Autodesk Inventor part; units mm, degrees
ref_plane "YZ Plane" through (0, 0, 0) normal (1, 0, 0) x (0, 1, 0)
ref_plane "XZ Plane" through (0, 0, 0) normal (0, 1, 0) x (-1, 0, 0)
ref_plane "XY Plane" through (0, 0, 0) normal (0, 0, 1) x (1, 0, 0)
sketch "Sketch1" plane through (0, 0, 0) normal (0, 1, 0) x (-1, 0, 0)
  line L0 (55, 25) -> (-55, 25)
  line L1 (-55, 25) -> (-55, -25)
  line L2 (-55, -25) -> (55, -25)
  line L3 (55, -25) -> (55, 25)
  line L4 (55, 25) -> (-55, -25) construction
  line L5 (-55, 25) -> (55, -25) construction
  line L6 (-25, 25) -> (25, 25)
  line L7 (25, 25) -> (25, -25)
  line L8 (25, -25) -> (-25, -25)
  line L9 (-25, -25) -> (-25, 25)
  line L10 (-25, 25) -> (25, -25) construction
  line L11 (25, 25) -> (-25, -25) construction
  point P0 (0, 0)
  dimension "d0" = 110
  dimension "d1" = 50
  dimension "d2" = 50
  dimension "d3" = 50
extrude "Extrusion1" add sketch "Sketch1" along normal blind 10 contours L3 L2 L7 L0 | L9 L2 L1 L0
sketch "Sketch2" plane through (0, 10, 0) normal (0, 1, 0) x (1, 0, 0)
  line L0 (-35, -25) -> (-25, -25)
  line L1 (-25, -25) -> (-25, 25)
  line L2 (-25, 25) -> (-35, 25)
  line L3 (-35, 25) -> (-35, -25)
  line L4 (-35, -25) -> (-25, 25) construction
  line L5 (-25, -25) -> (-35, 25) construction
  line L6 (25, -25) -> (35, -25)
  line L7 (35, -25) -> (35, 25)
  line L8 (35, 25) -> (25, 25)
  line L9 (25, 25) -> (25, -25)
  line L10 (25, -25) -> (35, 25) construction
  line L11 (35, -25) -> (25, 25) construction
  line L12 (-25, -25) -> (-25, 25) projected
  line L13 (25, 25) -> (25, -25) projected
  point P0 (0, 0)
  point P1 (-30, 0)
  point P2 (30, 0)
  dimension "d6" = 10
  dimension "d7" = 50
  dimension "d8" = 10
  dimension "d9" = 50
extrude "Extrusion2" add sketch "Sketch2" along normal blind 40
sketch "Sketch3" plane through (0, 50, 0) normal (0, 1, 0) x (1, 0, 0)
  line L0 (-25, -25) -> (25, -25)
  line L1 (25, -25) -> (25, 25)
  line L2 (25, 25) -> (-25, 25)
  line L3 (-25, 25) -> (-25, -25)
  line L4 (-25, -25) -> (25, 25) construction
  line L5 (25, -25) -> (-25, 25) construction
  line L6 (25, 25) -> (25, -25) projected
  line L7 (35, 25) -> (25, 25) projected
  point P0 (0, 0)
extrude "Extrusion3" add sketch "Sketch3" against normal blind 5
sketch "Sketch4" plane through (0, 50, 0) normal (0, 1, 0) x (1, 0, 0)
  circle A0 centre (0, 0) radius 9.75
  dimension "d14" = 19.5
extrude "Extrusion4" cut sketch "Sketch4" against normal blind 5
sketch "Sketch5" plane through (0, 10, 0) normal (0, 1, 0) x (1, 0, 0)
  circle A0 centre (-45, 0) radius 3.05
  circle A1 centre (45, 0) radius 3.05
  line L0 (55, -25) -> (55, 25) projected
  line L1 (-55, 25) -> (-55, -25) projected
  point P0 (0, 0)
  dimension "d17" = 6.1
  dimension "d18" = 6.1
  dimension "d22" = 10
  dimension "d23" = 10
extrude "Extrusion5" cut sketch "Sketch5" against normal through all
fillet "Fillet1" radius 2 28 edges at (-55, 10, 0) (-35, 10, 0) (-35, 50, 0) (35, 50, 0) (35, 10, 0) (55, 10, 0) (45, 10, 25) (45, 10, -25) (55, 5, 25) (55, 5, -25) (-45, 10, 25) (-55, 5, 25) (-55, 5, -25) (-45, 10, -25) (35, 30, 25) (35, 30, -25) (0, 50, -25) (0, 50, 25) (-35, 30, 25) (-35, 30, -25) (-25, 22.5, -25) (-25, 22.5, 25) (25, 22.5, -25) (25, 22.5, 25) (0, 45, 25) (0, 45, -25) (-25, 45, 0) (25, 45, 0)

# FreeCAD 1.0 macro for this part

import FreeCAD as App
import Part
import Sketcher

V = App.Vector


def edges_at(feature, points):
    """Names of the edges that pass closest to the given points."""
    edges = feature.Shape.Edges
    near = lambda p: min(range(len(edges)), key=lambda i: edges[i].distToShape(Part.Vertex(*p))[0])
    return sorted({f"Edge{near(p) + 1}" for p in points})


def add_polygon(sketch, points):
    """Adds a closed chain of lines whose ends are joined by coincident constraints."""
    first, n = sketch.GeometryCount, len(points)
    for a, b in zip(points, points[1:] + points[:1]):
        sketch.addGeometry(Part.LineSegment(App.Vector(*a, 0), App.Vector(*b, 0)), False)
    for i in range(n):
        sketch.addConstraint(Sketcher.Constraint("Coincident", first + i, 2, first + (i + 1) % n, 1))

doc = App.newDocument("Part")
params = doc.addObject("Spreadsheet::Sheet", "Params")
for row, (alias, value) in enumerate([
    ("sketch1_height", "50 mm"),
    ("pad1_length", "10 mm"),
    ("sketch2_width", "10 mm"),
    ("sketch2_height", "50 mm"),
    ("pad2_length", "40 mm"),
    ("sketch3_width", "50 mm"),
    ("pad3_length", "5 mm"),
    ("sketch4_diameter", "19.5 mm"),
    ("pocket1_length", "5 mm"),
    ("sketch5_diameter", "6.1 mm"),
    ("fillet_radius", "2 mm"),
], start=1):
    params.set(f"A{row}", alias)
    params.set(f"B{row}", "=" + value)
    params.setAlias(f"B{row}", alias)

body = doc.addObject("PartDesign::Body", "Body")
body.AllowCompound = True

sketch1 = body.newObject("Sketcher::SketchObject", "Sketch")
sketch1.AttachmentSupport = (doc.getObject("XZ_Plane"), [""])
sketch1.MapMode = "FlatFace"
add_polygon(sketch1, [(-55, -25), (-55, 25), (-25, 25), (-25, -25)])
add_polygon(sketch1, [(25, -25), (25, 25), (55, 25), (55, -25)])
sketch1.addConstraint(Sketcher.Constraint("Vertical", 0))
sketch1.addConstraint(Sketcher.Constraint("Horizontal", 1))
sketch1.addConstraint(Sketcher.Constraint("Vertical", 2))
sketch1.addConstraint(Sketcher.Constraint("Horizontal", 3))
sketch1.addConstraint(Sketcher.Constraint("Vertical", 4))
sketch1.addConstraint(Sketcher.Constraint("Horizontal", 5))
sketch1.addConstraint(Sketcher.Constraint("Vertical", 6))
sketch1.addConstraint(Sketcher.Constraint("Horizontal", 7))
sketch1.addConstraint(Sketcher.Constraint("Symmetric", 2, 2, 4, 2, -1, 1))
sketch1.addConstraint(Sketcher.Constraint("Symmetric", 0, 2, 6, 2, -1, 1))
sketch1.addConstraint(Sketcher.Constraint("Horizontal", 1, 2, 4, 2))
sketch1.addConstraint(Sketcher.Constraint("DistanceY", 0, 1, 0, 2, 50.0))
sketch1.addConstraint(Sketcher.Constraint("DistanceX", 1, 2, 4, 2, 50.0))
sketch1.addConstraint(Sketcher.Constraint("DistanceX", 0, 2, 5, 2, 110.0))
sketch1.setExpression("Constraints[19]", "Params.sketch1_height")
pad1 = body.newObject("PartDesign::Pad", "Pad")
pad1.Profile = sketch1
pad1.setExpression("Length", "Params.pad1_length")
pad1.Reversed = True

sketch2 = body.newObject("Sketcher::SketchObject", "Sketch001")
sketch2.AttachmentSupport = (doc.getObject("XZ_Plane"), [""])
sketch2.MapMode = "FlatFace"
sketch2.AttachmentOffset = App.Placement(V(0, 0, -10), App.Rotation())
add_polygon(sketch2, [(-35, -25), (-35, 25), (-25, 25), (-25, -25)])
add_polygon(sketch2, [(25, -25), (25, 25), (35, 25), (35, -25)])
sketch2.addConstraint(Sketcher.Constraint("Vertical", 0))
sketch2.addConstraint(Sketcher.Constraint("Horizontal", 1))
sketch2.addConstraint(Sketcher.Constraint("Vertical", 2))
sketch2.addConstraint(Sketcher.Constraint("Horizontal", 3))
sketch2.addConstraint(Sketcher.Constraint("Vertical", 4))
sketch2.addConstraint(Sketcher.Constraint("Horizontal", 5))
sketch2.addConstraint(Sketcher.Constraint("Vertical", 6))
sketch2.addConstraint(Sketcher.Constraint("Horizontal", 7))
sketch2.addConstraint(Sketcher.Constraint("Symmetric", 2, 2, 4, 2, -1, 1))
sketch2.addConstraint(Sketcher.Constraint("Symmetric", 0, 2, 6, 2, -1, 1))
sketch2.addConstraint(Sketcher.Constraint("Horizontal", 1, 2, 4, 2))
sketch2.addConstraint(Sketcher.Constraint("DistanceX", 1, 1, 1, 2, 10.0))
sketch2.addConstraint(Sketcher.Constraint("DistanceY", 0, 1, 0, 2, 50.0))
sketch2.addConstraint(Sketcher.Constraint("DistanceX", 1, 2, 4, 2, 50.0))
sketch2.setExpression("Constraints[19]", "Params.sketch2_width")
sketch2.setExpression("Constraints[20]", "Params.sketch2_height")
pad2 = body.newObject("PartDesign::Pad", "Pad001")
pad2.Profile = sketch2
pad2.setExpression("Length", "Params.pad2_length")
pad2.Reversed = True

sketch3 = body.newObject("Sketcher::SketchObject", "Sketch002")
sketch3.AttachmentSupport = (doc.getObject("XZ_Plane"), [""])
sketch3.MapMode = "FlatFace"
sketch3.AttachmentOffset = App.Placement(V(0, 0, -50), App.Rotation())
add_polygon(sketch3, [(-25, -25), (-25, 25), (25, 25), (25, -25)])
sketch3.addConstraint(Sketcher.Constraint("Vertical", 0))
sketch3.addConstraint(Sketcher.Constraint("Horizontal", 1))
sketch3.addConstraint(Sketcher.Constraint("Vertical", 2))
sketch3.addConstraint(Sketcher.Constraint("Horizontal", 3))
sketch3.addConstraint(Sketcher.Constraint("Symmetric", 0, 2, 2, 2, -1, 1))
sketch3.addConstraint(Sketcher.Constraint("Equal", 3, 0))
sketch3.addConstraint(Sketcher.Constraint("DistanceX", 1, 1, 1, 2, 50.0))
sketch3.setExpression("Constraints[10]", "Params.sketch3_width")
pad3 = body.newObject("PartDesign::Pad", "Pad002")
pad3.Profile = sketch3
pad3.setExpression("Length", "Params.pad3_length")

sketch4 = body.newObject("Sketcher::SketchObject", "Sketch003")
sketch4.AttachmentSupport = (doc.getObject("XZ_Plane"), [""])
sketch4.MapMode = "FlatFace"
sketch4.AttachmentOffset = App.Placement(V(0, 0, -50), App.Rotation())
sketch4.addGeometry(Part.Circle(V(0, 0, 0), V(0, 0, 1), 10), False)
sketch4.addConstraint(Sketcher.Constraint("Coincident", 0, 3, -1, 1))
sketch4.addConstraint(Sketcher.Constraint("Diameter", 0, 19.5))
sketch4.setExpression("Constraints[1]", "Params.sketch4_diameter")
pocket1 = body.newObject("PartDesign::Pocket", "Pocket")
pocket1.Profile = sketch4
pocket1.setExpression("Length", "Params.pocket1_length")
pocket1.Reversed = True

sketch5 = body.newObject("Sketcher::SketchObject", "Sketch004")
sketch5.AttachmentSupport = (doc.getObject("XZ_Plane"), [""])
sketch5.MapMode = "FlatFace"
sketch5.AttachmentOffset = App.Placement(V(0, 0, -10), App.Rotation())
sketch5.addGeometry(Part.Circle(V(-45, 0, 0), V(0, 0, 1), 3), False)
sketch5.addGeometry(Part.Circle(V(45, 0, 0), V(0, 0, 1), 3), False)
sketch5.addConstraint(Sketcher.Constraint("Equal", 0, 1))
sketch5.addConstraint(Sketcher.Constraint("Symmetric", 0, 3, 1, 3, -1, 1))
sketch5.addConstraint(Sketcher.Constraint("PointOnObject", 0, 3, -1))
sketch5.addConstraint(Sketcher.Constraint("Diameter", 0, 6.1))
sketch5.addConstraint(Sketcher.Constraint("DistanceX", 0, 3, -1, 1, 45.0))
sketch5.setExpression("Constraints[3]", "Params.sketch5_diameter")
pocket2 = body.newObject("PartDesign::Pocket", "Pocket001")
pocket2.Profile = sketch5
pocket2.Type = "ThroughAll"
pocket2.Reversed = True
doc.recompute()

fillet = body.newObject("PartDesign::Fillet", "Fillet")
fillet.Base = (pocket2, edges_at(pocket2, [
    (-55, 10, 0),
    (-35, 10, 0),
    (-35, 50, 0),
    (35, 50, 0),
    (35, 10, 0),
    (55, 10, 0),
    (45, 10, 25),
    (45, 10, -25),
    (55, 5, 25),
    (55, 5, -25),
    (-45, 10, 25),
    (-55, 5, 25),
    (-55, 5, -25),
    (-45, 10, -25),
    (35, 30, 25),
    (35, 30, -25),
    (0, 50, -25),
    (0, 50, 25),
    (-35, 30, 25),
    (-35, 30, -25),
    (-25, 22.5, -25),
    (-25, 22.5, 25),
    (25, 22.5, -25),
    (25, 22.5, 25),
    (0, 45, 25),
    (0, 45, -25),
    (-25, 45, 0),
    (25, 45, 0),
]))
fillet.setExpression("Radius", "Params.fillet_radius")

doc.recompute()
